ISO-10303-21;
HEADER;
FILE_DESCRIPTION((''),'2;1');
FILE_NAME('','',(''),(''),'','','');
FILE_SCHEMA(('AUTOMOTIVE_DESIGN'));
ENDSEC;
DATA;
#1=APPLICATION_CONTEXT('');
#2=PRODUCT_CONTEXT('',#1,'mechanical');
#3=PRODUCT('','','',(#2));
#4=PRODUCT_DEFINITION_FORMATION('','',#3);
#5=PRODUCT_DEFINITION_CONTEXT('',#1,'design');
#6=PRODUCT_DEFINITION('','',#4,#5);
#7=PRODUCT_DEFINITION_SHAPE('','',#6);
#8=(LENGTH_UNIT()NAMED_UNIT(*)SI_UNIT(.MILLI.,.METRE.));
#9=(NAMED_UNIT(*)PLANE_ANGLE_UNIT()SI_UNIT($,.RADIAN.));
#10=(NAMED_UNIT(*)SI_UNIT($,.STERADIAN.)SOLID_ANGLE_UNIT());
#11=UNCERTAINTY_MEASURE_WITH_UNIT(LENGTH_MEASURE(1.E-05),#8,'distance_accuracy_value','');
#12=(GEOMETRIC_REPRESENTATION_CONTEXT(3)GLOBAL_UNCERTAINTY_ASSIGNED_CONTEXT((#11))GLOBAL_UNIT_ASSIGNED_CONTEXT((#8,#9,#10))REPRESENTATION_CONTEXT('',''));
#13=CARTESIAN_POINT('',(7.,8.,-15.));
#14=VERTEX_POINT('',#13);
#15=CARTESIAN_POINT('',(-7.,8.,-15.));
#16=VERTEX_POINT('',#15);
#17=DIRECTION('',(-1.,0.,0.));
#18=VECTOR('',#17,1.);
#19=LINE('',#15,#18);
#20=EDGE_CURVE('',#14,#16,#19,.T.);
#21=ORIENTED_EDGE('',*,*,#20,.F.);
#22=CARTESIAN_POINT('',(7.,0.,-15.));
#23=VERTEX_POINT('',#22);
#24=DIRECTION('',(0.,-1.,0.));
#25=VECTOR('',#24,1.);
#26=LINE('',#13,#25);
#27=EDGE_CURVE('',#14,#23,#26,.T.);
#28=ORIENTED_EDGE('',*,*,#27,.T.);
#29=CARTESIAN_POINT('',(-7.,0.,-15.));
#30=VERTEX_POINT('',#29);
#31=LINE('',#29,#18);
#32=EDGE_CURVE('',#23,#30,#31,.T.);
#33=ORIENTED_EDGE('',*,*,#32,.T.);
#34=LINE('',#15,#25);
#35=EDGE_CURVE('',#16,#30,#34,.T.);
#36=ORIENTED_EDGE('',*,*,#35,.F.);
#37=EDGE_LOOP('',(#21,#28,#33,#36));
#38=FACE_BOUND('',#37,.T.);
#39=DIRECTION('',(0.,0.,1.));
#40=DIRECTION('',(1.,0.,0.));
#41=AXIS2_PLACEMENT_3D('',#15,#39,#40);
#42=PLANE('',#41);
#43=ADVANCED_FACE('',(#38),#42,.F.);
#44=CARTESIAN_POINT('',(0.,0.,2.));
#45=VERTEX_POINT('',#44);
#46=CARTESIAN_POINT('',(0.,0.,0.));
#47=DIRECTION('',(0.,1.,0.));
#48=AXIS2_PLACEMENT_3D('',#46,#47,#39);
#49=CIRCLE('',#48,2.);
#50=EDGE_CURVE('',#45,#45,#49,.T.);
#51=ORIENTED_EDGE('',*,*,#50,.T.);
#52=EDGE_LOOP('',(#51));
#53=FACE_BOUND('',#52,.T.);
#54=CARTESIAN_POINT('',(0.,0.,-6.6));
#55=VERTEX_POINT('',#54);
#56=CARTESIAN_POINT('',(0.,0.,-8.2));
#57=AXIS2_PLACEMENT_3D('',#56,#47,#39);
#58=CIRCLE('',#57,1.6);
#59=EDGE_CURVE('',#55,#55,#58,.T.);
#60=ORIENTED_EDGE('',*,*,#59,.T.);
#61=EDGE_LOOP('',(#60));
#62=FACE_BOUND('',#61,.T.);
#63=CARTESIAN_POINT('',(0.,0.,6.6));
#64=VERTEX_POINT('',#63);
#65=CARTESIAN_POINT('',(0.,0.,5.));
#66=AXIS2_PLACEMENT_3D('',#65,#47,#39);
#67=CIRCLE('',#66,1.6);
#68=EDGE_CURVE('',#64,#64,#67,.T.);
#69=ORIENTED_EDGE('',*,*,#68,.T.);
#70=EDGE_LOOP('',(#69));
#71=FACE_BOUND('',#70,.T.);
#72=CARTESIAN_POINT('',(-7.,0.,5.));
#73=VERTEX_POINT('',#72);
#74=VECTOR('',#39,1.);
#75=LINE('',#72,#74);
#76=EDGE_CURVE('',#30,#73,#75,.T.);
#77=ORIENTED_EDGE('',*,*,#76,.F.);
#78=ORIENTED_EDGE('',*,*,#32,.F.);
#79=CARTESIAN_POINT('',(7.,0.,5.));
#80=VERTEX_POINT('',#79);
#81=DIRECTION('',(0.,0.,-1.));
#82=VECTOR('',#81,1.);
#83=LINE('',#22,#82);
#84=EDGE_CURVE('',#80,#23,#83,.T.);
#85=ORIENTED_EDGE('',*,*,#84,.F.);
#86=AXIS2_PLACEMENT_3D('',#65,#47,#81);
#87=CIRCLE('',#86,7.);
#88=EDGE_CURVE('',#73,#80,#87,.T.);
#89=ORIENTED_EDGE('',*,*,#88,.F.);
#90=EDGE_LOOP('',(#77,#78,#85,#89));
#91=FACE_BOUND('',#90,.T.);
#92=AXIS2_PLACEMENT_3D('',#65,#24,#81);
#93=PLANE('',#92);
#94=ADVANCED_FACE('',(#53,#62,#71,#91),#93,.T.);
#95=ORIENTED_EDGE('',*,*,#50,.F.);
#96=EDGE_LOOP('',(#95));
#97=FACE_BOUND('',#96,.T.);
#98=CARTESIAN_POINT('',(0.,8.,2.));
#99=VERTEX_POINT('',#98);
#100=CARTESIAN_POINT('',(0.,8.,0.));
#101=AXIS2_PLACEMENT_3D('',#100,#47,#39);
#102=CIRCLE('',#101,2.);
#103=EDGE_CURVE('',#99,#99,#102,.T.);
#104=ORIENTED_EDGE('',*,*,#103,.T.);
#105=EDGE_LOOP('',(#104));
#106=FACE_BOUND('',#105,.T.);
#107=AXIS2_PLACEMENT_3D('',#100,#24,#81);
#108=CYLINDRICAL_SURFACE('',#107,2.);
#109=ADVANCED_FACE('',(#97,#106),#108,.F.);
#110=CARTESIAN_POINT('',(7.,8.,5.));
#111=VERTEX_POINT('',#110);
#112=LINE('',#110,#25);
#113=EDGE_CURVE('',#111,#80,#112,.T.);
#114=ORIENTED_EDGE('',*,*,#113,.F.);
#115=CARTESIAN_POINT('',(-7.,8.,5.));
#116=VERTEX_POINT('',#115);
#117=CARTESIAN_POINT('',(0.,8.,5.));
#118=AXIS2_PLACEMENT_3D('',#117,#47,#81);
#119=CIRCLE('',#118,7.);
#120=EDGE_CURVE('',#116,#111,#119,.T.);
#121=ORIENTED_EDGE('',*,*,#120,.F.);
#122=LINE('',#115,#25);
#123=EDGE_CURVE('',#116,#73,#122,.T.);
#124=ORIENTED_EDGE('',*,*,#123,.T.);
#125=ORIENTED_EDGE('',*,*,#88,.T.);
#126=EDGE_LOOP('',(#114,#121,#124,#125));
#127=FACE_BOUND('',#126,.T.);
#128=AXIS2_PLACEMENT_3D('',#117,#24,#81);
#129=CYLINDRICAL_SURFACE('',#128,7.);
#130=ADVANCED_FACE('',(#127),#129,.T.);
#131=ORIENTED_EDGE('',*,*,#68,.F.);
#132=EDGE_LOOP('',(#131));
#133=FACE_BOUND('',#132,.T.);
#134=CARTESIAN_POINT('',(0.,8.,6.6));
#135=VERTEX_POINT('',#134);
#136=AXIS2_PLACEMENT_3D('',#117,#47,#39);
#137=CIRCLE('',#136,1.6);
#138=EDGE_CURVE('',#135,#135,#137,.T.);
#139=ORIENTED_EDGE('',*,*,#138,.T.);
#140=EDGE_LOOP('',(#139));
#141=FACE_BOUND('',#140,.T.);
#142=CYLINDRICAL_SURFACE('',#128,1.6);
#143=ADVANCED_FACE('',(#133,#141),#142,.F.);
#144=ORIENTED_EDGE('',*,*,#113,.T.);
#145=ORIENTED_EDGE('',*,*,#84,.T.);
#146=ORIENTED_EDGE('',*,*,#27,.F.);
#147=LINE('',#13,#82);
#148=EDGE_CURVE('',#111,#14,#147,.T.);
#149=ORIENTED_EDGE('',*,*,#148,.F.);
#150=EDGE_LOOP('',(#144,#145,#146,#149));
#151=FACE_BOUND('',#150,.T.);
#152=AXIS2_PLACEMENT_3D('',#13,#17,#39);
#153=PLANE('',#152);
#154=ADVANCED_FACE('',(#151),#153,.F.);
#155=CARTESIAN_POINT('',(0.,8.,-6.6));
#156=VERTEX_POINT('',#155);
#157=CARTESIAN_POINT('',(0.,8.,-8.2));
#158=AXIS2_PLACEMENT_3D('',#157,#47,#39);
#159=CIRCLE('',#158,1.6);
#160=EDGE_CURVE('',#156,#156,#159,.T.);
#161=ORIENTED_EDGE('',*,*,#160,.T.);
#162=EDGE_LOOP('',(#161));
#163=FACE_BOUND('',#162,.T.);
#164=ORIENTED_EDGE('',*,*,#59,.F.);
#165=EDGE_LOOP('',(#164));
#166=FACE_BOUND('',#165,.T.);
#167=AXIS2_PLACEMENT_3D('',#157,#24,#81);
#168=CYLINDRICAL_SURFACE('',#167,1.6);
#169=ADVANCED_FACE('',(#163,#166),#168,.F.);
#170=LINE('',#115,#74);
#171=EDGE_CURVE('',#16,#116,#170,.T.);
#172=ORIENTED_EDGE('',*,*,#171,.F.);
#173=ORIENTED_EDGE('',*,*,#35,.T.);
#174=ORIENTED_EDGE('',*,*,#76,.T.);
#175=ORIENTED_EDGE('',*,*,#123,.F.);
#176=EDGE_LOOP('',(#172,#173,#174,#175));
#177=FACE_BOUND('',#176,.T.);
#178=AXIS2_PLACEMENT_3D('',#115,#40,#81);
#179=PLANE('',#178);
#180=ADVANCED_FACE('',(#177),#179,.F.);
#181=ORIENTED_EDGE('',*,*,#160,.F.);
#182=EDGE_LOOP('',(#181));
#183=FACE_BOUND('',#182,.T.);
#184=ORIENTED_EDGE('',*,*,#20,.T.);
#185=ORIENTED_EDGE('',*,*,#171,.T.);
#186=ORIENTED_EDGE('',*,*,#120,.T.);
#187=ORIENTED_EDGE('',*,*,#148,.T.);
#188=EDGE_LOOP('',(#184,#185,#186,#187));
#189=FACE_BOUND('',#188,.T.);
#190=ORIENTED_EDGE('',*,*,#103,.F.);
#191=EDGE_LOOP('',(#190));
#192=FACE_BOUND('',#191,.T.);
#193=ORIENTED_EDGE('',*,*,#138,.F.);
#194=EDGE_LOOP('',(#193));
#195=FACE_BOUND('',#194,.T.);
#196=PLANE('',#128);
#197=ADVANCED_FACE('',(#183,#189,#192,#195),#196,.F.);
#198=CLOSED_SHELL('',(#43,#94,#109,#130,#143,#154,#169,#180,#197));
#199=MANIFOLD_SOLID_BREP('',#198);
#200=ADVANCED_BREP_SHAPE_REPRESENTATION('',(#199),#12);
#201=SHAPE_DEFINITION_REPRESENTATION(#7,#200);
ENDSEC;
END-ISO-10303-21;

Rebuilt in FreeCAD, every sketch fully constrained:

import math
import FreeCAD as App
import Part
import Sketcher

doc = App.newDocument("Part")
params = doc.addObject("Spreadsheet::Sheet", "Params")
for row, (alias, value) in enumerate([
    ("sketch1_diameter", "4 mm"),
    ("sketch1_radius", "7 mm"),
    ("sketch1_diameter2", "3.2 mm"),
    ("sketch1_height", "20 mm"),
    ("pad1_length", "8 mm"),
], start=1):
    params.set(f"A{row}", alias)
    params.set(f"B{row}", "=" + value)
    params.setAlias(f"B{row}", alias)

body = doc.addObject("PartDesign::Body", "Body")

# Sketch on XZ plane
sketch1 = body.newObject("Sketcher::SketchObject", "Sketch")
sketch1.AttachmentSupport = (doc.getObject("XZ_Plane"), [""])
sketch1.MapMode = "FlatFace"
sketch1.addGeometry(Part.LineSegment(App.Vector(7, -15, 0), App.Vector(-7, -15, 0)), False)
sketch1.addGeometry(Part.LineSegment(App.Vector(-7, -15, 0), App.Vector(-7, 5, 0)), False)
sketch1.addGeometry(Part.ArcOfCircle(Part.Circle(App.Vector(0, 5, 0), App.Vector(0, 0, 1), 7), math.radians(0), math.radians(180)), False)
sketch1.addGeometry(Part.LineSegment(App.Vector(7, 5, 0), App.Vector(7, -15, 0)), False)
sketch1.addGeometry(Part.Circle(App.Vector(0, 5, 0), App.Vector(0, 0, 1), 1.6), False)
sketch1.addGeometry(Part.Circle(App.Vector(0, 0, 0), App.Vector(0, 0, 1), 2), False)
sketch1.addGeometry(Part.Circle(App.Vector(0, -8.2, 0), App.Vector(0, 0, 1), 1.6), False)
sketch1.addConstraint(Sketcher.Constraint("Coincident", 0, 2, 1, 1))
sketch1.addConstraint(Sketcher.Constraint("Tangent", 1, 2, 2, 2))
sketch1.addConstraint(Sketcher.Constraint("Tangent", 2, 1, 3, 1))
sketch1.addConstraint(Sketcher.Constraint("Coincident", 3, 2, 0, 1))
sketch1.addConstraint(Sketcher.Constraint("Horizontal", 0))
sketch1.addConstraint(Sketcher.Constraint("Vertical", 1))
sketch1.addConstraint(Sketcher.Constraint("Vertical", 3))
sketch1.addConstraint(Sketcher.Constraint("Coincident", 5, 3, -1, 1))
sketch1.addConstraint(Sketcher.Constraint("Coincident", 4, 3, 2, 3))
sketch1.addConstraint(Sketcher.Constraint("Equal", 4, 6))
sketch1.addConstraint(Sketcher.Constraint("PointOnObject", 2, 3, -2))
sketch1.addConstraint(Sketcher.Constraint("PointOnObject", 6, 3, -2))
sketch1.addConstraint(Sketcher.Constraint("Diameter", 5, 4.0))
sketch1.addConstraint(Sketcher.Constraint("Radius", 2, 7.0))
sketch1.addConstraint(Sketcher.Constraint("Diameter", 4, 3.2))
sketch1.addConstraint(Sketcher.Constraint("DistanceY", 1, 1, 1, 2, 20.0))
sketch1.addConstraint(Sketcher.Constraint("DistanceY", -1, 1, 2, 3, 5.0))
sketch1.addConstraint(Sketcher.Constraint("DistanceY", 6, 3, -1, 1, 8.2))
sketch1.setExpression("Constraints[12]", "Params.sketch1_diameter")
sketch1.setExpression("Constraints[13]", "Params.sketch1_radius")
sketch1.setExpression("Constraints[14]", "Params.sketch1_diameter2")
sketch1.setExpression("Constraints[15]", "Params.sketch1_height")
pad1 = body.newObject("PartDesign::Pad", "Pad")
pad1.Profile = sketch1
pad1.setExpression("Length", "Params.pad1_length")
pad1.Reversed = True

doc.recompute()
